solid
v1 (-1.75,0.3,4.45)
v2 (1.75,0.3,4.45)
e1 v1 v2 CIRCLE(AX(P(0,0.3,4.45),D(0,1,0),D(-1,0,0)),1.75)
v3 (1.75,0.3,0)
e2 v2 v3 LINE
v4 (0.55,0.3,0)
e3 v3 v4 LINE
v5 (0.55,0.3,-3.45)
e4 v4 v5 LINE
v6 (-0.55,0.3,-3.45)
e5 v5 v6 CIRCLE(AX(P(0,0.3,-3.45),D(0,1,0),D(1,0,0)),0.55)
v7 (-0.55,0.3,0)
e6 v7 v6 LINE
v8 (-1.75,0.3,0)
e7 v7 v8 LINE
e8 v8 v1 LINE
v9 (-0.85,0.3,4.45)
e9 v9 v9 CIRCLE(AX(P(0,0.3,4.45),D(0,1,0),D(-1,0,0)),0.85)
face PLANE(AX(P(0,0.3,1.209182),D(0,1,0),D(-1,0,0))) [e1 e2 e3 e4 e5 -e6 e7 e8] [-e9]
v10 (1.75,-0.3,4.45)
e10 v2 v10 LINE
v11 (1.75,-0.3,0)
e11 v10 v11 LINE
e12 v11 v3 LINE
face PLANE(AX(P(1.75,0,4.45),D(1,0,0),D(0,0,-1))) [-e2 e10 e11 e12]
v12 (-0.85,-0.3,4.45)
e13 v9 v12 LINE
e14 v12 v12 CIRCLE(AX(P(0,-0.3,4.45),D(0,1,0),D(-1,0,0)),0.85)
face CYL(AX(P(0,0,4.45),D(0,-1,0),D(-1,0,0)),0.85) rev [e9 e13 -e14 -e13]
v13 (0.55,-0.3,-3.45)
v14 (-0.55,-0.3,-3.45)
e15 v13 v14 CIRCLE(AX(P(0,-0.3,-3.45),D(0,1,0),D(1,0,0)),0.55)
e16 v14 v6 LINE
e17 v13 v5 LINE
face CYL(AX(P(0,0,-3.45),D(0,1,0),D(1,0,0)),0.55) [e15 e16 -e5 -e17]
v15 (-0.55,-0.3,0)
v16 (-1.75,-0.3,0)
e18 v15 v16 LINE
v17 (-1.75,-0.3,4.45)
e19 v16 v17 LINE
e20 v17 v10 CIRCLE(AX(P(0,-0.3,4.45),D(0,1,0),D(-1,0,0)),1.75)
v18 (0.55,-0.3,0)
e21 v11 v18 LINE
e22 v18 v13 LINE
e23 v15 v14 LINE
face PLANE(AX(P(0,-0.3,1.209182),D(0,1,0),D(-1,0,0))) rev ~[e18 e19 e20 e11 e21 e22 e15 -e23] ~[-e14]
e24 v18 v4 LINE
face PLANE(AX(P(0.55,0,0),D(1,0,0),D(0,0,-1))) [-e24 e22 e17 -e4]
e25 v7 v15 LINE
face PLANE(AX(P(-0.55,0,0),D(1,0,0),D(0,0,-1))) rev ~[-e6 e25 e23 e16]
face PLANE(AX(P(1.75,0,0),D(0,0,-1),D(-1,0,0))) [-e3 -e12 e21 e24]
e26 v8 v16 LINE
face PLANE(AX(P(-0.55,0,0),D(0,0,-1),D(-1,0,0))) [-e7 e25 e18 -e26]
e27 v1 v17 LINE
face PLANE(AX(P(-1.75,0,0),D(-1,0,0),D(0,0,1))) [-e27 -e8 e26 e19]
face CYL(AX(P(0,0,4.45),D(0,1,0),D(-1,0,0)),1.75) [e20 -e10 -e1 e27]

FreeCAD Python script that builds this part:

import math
import FreeCAD as App
import Part
import Sketcher

doc = App.newDocument("Part")
body = doc.addObject("PartDesign::Body", "Body")

sketch1 = doc.addObject("Sketcher::SketchObject", "Sketch")
body.addObject(sketch1)
sketch1.AttachmentSupport = (doc.XZ_Plane, [""])
sketch1.MapMode = "FlatFace"
sketch1.addGeometry(Part.LineSegment(App.Vector(1.8, 4.5, 0), App.Vector(1.8, 0, 0)), False)
sketch1.addGeometry(Part.LineSegment(App.Vector(1.8, 0, 0), App.Vector(0.6, 0, 0)), False)
sketch1.addGeometry(Part.LineSegment(App.Vector(0.6, 0, 0), App.Vector(0.6, -3.5, 0)), False)
sketch1.addGeometry(Part.ArcOfCircle(Part.Circle(App.Vector(0, -3.5, 0), App.Vector(0, 0, 1), 0.6), math.radians(180), math.radians(360)), False)
sketch1.addGeometry(Part.LineSegment(App.Vector(-0.6, -3.5, 0), App.Vector(-0.6, 0, 0)), False)
sketch1.addGeometry(Part.LineSegment(App.Vector(-0.6, 0, 0), App.Vector(-1.8, 0, 0)), False)
sketch1.addGeometry(Part.LineSegment(App.Vector(-1.8, 0, 0), App.Vector(-1.8, 4.5, 0)), False)
sketch1.addGeometry(Part.ArcOfCircle(Part.Circle(App.Vector(0, 4.5, 0), App.Vector(0, 0, 1), 1.8), math.radians(0), math.radians(180)), False)
sketch1.addGeometry(Part.Circle(App.Vector(0, 4.5, 0), App.Vector(0, 0, 1), 0.8), False)
sketch1.addConstraint(Sketcher.Constraint("Coincident", 0, 2, 1, 1))
sketch1.addConstraint(Sketcher.Constraint("Coincident", 1, 2, 2, 1))
sketch1.addConstraint(Sketcher.Constraint("Tangent", 2, 2, 3, 2))
sketch1.addConstraint(Sketcher.Constraint("Tangent", 3, 1, 4, 1))
sketch1.addConstraint(Sketcher.Constraint("Coincident", 4, 2, 5, 1))
sketch1.addConstraint(Sketcher.Constraint("Coincident", 5, 2, 6, 1))
sketch1.addConstraint(Sketcher.Constraint("Tangent", 6, 2, 7, 2))
sketch1.addConstraint(Sketcher.Constraint("Tangent", 7, 1, 0, 1))
sketch1.addConstraint(Sketcher.Constraint("Vertical", 0))
sketch1.addConstraint(Sketcher.Constraint("Horizontal", 1))
sketch1.addConstraint(Sketcher.Constraint("Vertical", 2))
sketch1.addConstraint(Sketcher.Constraint("Vertical", 4))
sketch1.addConstraint(Sketcher.Constraint("Horizontal", 5))
sketch1.addConstraint(Sketcher.Constraint("Vertical", 6))
sketch1.addConstraint(Sketcher.Constraint("Coincident", 8, 3, 7, 3))
sketch1.addConstraint(Sketcher.Constraint("Symmetric", 1, 2, 4, 2, -1, 1))
sketch1.addConstraint(Sketcher.Constraint("Symmetric", 0, 2, 5, 2, -2))
sketch1.addConstraint(Sketcher.Constraint("Diameter", 8, 1.7))
sketch1.addConstraint(Sketcher.Constraint("Radius", 3, 0.55))
sketch1.addConstraint(Sketcher.Constraint("Radius", 7, 1.75))
sketch1.addConstraint(Sketcher.Constraint("DistanceY", 0, 2, 0, 1, 4.45))
sketch1.addConstraint(Sketcher.Constraint("DistanceY", 2, 2, 2, 1, 3.45))
pad1 = doc.addObject("PartDesign::Pad", "Pad")
body.addObject(pad1)
pad1.Profile = sketch1
pad1.Length = 0.6
pad1.Midplane = True

doc.recompute()
